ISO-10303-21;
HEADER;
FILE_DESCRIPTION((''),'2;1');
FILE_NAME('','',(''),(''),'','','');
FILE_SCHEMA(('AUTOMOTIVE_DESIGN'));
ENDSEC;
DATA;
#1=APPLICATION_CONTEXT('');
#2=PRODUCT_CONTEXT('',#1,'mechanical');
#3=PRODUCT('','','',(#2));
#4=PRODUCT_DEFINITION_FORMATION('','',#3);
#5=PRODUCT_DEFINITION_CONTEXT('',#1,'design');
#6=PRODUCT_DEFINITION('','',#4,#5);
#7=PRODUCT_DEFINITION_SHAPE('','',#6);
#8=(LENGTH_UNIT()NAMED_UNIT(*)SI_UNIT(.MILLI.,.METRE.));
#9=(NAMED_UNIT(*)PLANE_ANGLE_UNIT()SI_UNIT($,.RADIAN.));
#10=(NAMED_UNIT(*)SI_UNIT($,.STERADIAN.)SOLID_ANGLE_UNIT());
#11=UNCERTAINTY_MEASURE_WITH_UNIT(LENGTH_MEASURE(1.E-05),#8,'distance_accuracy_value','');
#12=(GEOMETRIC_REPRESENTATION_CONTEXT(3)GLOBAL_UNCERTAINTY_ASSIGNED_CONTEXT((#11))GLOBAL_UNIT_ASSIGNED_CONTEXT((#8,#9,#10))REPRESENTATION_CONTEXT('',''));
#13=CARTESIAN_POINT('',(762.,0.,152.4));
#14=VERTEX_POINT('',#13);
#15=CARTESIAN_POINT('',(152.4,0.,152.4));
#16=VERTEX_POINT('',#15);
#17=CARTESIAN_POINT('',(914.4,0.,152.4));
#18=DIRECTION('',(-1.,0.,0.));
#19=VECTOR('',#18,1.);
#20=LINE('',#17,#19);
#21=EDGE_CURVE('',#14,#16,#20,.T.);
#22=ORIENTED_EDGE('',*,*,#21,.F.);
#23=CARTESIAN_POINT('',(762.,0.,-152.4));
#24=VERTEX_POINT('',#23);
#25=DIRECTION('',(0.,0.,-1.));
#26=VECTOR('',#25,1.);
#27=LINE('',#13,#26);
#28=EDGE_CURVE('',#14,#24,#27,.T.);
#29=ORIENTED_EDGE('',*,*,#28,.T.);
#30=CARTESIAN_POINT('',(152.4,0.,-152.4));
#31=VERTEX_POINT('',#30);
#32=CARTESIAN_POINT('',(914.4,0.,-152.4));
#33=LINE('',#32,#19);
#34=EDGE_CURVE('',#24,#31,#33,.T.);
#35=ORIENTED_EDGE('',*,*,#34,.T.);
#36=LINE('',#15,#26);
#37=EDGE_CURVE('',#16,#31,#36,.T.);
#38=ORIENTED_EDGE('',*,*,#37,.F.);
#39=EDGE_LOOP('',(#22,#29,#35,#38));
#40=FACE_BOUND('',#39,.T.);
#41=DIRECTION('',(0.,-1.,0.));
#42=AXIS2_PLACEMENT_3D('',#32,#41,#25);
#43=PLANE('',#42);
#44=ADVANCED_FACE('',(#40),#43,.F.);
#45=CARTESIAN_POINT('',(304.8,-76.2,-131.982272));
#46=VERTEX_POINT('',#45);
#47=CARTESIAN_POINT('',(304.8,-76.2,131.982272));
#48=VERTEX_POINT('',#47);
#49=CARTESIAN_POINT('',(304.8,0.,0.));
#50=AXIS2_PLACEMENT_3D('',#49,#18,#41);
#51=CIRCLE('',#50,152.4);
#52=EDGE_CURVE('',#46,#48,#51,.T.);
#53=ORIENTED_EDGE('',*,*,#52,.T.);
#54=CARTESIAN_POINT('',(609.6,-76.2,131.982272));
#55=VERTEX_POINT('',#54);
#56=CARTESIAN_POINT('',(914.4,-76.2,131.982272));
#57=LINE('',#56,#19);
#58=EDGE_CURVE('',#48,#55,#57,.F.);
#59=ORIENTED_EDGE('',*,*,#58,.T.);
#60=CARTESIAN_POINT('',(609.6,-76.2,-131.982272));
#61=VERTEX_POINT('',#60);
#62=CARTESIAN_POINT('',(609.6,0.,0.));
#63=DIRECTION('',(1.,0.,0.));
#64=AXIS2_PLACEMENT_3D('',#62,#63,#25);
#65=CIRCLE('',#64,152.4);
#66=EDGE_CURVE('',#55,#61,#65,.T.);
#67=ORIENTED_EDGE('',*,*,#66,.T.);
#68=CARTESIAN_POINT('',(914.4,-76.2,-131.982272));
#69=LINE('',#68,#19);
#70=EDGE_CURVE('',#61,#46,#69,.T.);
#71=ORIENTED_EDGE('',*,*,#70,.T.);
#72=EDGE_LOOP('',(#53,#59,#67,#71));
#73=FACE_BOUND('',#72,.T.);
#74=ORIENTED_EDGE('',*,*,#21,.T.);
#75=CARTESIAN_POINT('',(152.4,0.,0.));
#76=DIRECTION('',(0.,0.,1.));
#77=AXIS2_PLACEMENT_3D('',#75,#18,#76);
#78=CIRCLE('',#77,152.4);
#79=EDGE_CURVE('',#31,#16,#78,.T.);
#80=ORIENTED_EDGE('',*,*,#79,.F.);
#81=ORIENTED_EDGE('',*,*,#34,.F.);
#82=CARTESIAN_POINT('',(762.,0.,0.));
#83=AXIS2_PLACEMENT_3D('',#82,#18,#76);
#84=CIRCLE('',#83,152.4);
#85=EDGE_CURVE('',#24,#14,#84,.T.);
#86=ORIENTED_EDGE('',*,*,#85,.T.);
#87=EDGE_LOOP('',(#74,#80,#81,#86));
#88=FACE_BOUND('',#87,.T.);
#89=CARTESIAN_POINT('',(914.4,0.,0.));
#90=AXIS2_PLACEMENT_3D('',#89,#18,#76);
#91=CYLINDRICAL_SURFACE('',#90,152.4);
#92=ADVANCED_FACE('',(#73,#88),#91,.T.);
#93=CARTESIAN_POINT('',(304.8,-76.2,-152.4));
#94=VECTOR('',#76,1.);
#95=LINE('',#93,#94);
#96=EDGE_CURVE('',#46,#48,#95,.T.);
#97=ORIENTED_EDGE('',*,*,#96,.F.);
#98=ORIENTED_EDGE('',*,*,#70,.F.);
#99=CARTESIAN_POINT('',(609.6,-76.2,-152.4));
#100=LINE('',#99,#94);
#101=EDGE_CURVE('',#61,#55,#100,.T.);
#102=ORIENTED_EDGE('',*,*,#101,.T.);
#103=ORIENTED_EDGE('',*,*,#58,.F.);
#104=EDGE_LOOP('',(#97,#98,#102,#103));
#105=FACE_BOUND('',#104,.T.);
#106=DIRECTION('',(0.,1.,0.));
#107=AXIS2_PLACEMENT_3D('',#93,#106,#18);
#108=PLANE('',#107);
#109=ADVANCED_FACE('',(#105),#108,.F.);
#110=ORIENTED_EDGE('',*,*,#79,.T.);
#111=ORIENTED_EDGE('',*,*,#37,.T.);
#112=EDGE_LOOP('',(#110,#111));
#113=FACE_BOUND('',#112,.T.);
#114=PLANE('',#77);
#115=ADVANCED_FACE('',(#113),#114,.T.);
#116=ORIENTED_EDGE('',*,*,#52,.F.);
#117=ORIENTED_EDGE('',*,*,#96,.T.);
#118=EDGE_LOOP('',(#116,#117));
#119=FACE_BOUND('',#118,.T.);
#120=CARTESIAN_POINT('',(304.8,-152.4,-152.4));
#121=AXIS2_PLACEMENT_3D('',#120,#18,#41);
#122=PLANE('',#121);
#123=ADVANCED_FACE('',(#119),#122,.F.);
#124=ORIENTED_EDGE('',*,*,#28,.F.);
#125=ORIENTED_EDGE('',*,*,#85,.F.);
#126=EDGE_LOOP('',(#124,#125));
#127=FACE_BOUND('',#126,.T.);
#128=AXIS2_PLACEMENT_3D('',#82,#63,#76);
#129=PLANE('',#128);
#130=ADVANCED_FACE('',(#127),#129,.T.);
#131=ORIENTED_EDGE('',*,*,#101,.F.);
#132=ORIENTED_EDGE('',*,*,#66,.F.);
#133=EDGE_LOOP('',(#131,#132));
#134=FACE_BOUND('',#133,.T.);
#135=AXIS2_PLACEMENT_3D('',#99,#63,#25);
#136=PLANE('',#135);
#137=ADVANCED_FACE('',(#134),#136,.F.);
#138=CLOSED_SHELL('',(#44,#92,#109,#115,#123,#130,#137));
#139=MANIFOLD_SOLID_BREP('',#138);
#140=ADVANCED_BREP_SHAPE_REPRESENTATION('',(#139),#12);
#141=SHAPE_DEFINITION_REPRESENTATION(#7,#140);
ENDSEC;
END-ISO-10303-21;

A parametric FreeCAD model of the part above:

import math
import FreeCAD as App
import Part
import Sketcher
Q = App.Units.Quantity


def add_polygon(sketch, points):
    """Adds a closed chain of lines whose ends are joined by coincident constraints."""
    first, n = sketch.GeometryCount, len(points)
    for a, b in zip(points, points[1:] + points[:1]):
        sketch.addGeometry(Part.LineSegment(App.Vector(*a, 0), App.Vector(*b, 0)), False)
    for i in range(n):
        sketch.addConstraint(Sketcher.Constraint("Coincident", first + i, 2, first + (i + 1) % n, 1))

doc = App.newDocument("Part")
params = doc.addObject("Spreadsheet::Sheet", "Params")
for row, (alias, value) in enumerate([
    ("sketch1_radius", "6 in"),
    ("pad1_length", "36 in"),
    ("sketch2_width", "12 in"),
    ("sketch2_height", "3 in"),
    ("sketch3_radius", "6 in"),
    ("pocket2_length", "6 in"),
], start=1):
    params.set(f"A{row}", alias)
    params.set(f"B{row}", "=" + value)
    params.setAlias(f"B{row}", alias)

body = doc.addObject("PartDesign::Body", "Body")

sketch1 = body.newObject("Sketcher::SketchObject", "Sketch")
sketch1.AttachmentSupport = (doc.getObject("YZ_Plane"), [""])
sketch1.MapMode = "FlatFace"
sketch1.addGeometry(Part.LineSegment(App.Vector(0, -152, 0), App.Vector(0, 152, 0)), False)
sketch1.addGeometry(Part.ArcOfCircle(Part.Circle(App.Vector(0, 0, 0), App.Vector(0, 0, 1), 152), math.radians(90), math.radians(270)), False)
sketch1.addConstraint(Sketcher.Constraint("Coincident", 0, 1, 1, 2))
sketch1.addConstraint(Sketcher.Constraint("Coincident", 1, 1, 0, 2))
sketch1.addConstraint(Sketcher.Constraint("Vertical", 0))
sketch1.addConstraint(Sketcher.Constraint("Coincident", 1, 3, -1, 1))
sketch1.addConstraint(Sketcher.Constraint("PointOnObject", 0, 1, -2))
sketch1.addConstraint(Sketcher.Constraint("Radius", 1, Q("6 in")))
sketch1.setExpression("Constraints[5]", "Params.sketch1_radius")
pad1 = body.newObject("PartDesign::Pad", "Pad")
pad1.Profile = sketch1
pad1.setExpression("Length", "Params.pad1_length")

sketch2 = body.newObject("Sketcher::SketchObject", "Sketch001")
sketch2.AttachmentSupport = (doc.getObject("XY_Plane"), [""])
sketch2.MapMode = "FlatFace"
add_polygon(sketch2, [(305, -76), (305, -152), (610, -152), (610, -76)])
sketch2.addConstraint(Sketcher.Constraint("Vertical", 0))
sketch2.addConstraint(Sketcher.Constraint("Horizontal", 1))
sketch2.addConstraint(Sketcher.Constraint("Vertical", 2))
sketch2.addConstraint(Sketcher.Constraint("Horizontal", 3))
sketch2.addConstraint(Sketcher.Constraint("DistanceX", 1, 1, 1, 2, Q("12 in")))
sketch2.addConstraint(Sketcher.Constraint("DistanceY", 0, 2, 0, 1, Q("3 in")))
sketch2.addConstraint(Sketcher.Constraint("DistanceX", -1, 1, 0, 2, Q("12 in")))
sketch2.addConstraint(Sketcher.Constraint("DistanceY", 0, 2, -1, 1, Q("6 in")))
sketch2.setExpression("Constraints[8]", "Params.sketch2_width")
sketch2.setExpression("Constraints[9]", "Params.sketch2_height")
pocket1 = body.newObject("PartDesign::Pocket", "Pocket")
pocket1.Profile = sketch2
pocket1.Type = "ThroughAll"
pocket1.Midplane = True

sketch3 = body.newObject("Sketcher::SketchObject", "Sketch002")
sketch3.AttachmentSupport = (doc.getObject("YZ_Plane"), [""])
sketch3.MapMode = "FlatFace"
sketch3.addGeometry(Part.LineSegment(App.Vector(0, 152, 0), App.Vector(0, -152, 0)), False)
sketch3.addGeometry(Part.ArcOfCircle(Part.Circle(App.Vector(0, 0, 0), App.Vector(0, 0, 1), 152), math.radians(90), math.radians(270)), False)
sketch3.addConstraint(Sketcher.Constraint("Coincident", 0, 1, 1, 1))
sketch3.addConstraint(Sketcher.Constraint("Coincident", 1, 2, 0, 2))
sketch3.addConstraint(Sketcher.Constraint("Vertical", 0))
sketch3.addConstraint(Sketcher.Constraint("Coincident", 1, 3, -1, 1))
sketch3.addConstraint(Sketcher.Constraint("PointOnObject", 0, 1, -2))
sketch3.addConstraint(Sketcher.Constraint("Radius", 1, Q("6 in")))
sketch3.setExpression("Constraints[5]", "Params.sketch3_radius")
pocket2 = body.newObject("PartDesign::Pocket", "Pocket001")
pocket2.Profile = sketch3
pocket2.setExpression("Length", "Params.pocket2_length")
pocket2.Reversed = True
doc.recompute()

datumplane = body.newObject("PartDesign::Plane", "DatumPlane")
datumplane.AttachmentSupport = (doc.getObject("YZ_Plane"), [""])
datumplane.MapMode = "FlatFace"
datumplane.AttachmentOffset = App.Placement(App.Vector(0, 0, 18 * 25.4), App.Rotation())
mirrored = body.newObject("PartDesign::Mirrored", "Mirrored")
mirrored.Originals = [pocket2]
mirrored.MirrorPlane = (datumplane, [""])
body.Tip = mirrored

doc.recompute()
